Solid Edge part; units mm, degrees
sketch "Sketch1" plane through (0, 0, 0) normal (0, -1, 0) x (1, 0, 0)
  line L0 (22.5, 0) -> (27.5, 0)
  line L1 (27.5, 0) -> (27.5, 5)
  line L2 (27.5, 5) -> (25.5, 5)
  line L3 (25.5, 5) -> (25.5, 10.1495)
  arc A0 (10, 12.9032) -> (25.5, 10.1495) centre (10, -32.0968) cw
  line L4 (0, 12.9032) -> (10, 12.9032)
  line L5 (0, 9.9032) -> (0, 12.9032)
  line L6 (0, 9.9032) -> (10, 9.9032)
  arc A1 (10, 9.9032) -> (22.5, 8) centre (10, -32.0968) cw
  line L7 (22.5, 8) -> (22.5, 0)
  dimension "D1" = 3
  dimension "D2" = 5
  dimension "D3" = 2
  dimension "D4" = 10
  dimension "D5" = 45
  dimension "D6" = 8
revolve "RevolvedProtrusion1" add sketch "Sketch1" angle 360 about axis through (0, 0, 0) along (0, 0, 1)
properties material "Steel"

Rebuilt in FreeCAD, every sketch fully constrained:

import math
import FreeCAD as App
import Part
import Sketcher
Q = App.Units.Quantity

doc = App.newDocument("Part")
body = doc.addObject("PartDesign::Body", "Body")

# Sketch on XZ plane
sketch1 = body.newObject("Sketcher::SketchObject", "Sketch")
sketch1.AttachmentSupport = (doc.getObject("XZ_Plane"), [""])
sketch1.MapMode = "FlatFace"
sketch1.addGeometry([
    Part.LineSegment(App.Vector(22.5, 8, 0), App.Vector(22.5, 0, 0)),  # 0
    Part.LineSegment(App.Vector(22.5, 0, 0), App.Vector(27.5, 0, 0)),  # 1
    Part.LineSegment(App.Vector(27.5, 0, 0), App.Vector(27.5, 5, 0)),  # 2
    Part.LineSegment(App.Vector(27.5, 5, 0), App.Vector(25.5, 5, 0)),  # 3
    Part.LineSegment(App.Vector(25.5, 5, 0), App.Vector(25.5, 10.1, 0)),  # 4
    Part.ArcOfCircle(Part.Circle(App.Vector(10, -32.1, 0), App.Vector(0, 0, 1), 45), math.radians(70), math.radians(90)),  # 5
    Part.LineSegment(App.Vector(10, 12.9, 0), App.Vector(0, 12.9, 0)),  # 6
    Part.LineSegment(App.Vector(0, 12.9, 0), App.Vector(0, 9.9, 0)),  # 7
    Part.LineSegment(App.Vector(0, 9.9, 0), App.Vector(10, 9.9, 0)),  # 8
    Part.ArcOfCircle(Part.Circle(App.Vector(10, -32.1, 0), App.Vector(0, 0, 1), 42), math.radians(72.69), math.radians(90)),  # 9
], False)
sketch1.addConstraint([
    Sketcher.Constraint("Coincident", 0, 2, 1, 1),
    Sketcher.Constraint("Coincident", 1, 2, 2, 1),
    Sketcher.Constraint("Coincident", 2, 2, 3, 1),
    Sketcher.Constraint("Coincident", 3, 2, 4, 1),
    Sketcher.Constraint("Coincident", 4, 2, 5, 1),
    Sketcher.Constraint("Tangent", 5, 2, 6, 1),
    Sketcher.Constraint("Coincident", 6, 2, 7, 1),
    Sketcher.Constraint("Coincident", 7, 2, 8, 1),
    Sketcher.Constraint("Tangent", 8, 2, 9, 2),
    Sketcher.Constraint("Coincident", 9, 1, 0, 1),
    Sketcher.Constraint("Vertical", 0),
    Sketcher.Constraint("Horizontal", 1),
    Sketcher.Constraint("Vertical", 2),
    Sketcher.Constraint("Horizontal", 3),
    Sketcher.Constraint("Vertical", 4),
    Sketcher.Constraint("Horizontal", 6),
    Sketcher.Constraint("Vertical", 7),
    Sketcher.Constraint("Horizontal", 8),
    Sketcher.Constraint("PointOnObject", 0, 2, -1),
    Sketcher.Constraint("PointOnObject", 6, 2, -2),
    Sketcher.Constraint("Vertical", 5, 3, 9, 3),
    Sketcher.Constraint("Equal", 1, 2),
    Sketcher.Constraint("Radius", 5, Q("45 mm")),
    Sketcher.Constraint("DistanceX", -1, 1, 0, 2, Q("22.5 mm")),
    Sketcher.Constraint("DistanceX", -1, 1, 1, 2, Q("27.5 mm")),
    Sketcher.Constraint("DistanceX", 3, 2, 3, 1, Q("2 mm")),
    Sketcher.Constraint("DistanceX", 6, 2, 6, 1, Q("10 mm")),
    Sketcher.Constraint("DistanceY", 0, 2, 0, 1, Q("8 mm")),
    Sketcher.Constraint("DistanceY", 7, 2, 7, 1, Q("3 mm")),
    Sketcher.Constraint("Radius", 9, Q("42.0018 mm")),
])
revolution = body.newObject("PartDesign::Revolution", "Revolution")
revolution.Profile = sketch1
revolution.ReferenceAxis = (sketch1, ["V_Axis"])
revolution.Angle = 360

doc.recompute()
